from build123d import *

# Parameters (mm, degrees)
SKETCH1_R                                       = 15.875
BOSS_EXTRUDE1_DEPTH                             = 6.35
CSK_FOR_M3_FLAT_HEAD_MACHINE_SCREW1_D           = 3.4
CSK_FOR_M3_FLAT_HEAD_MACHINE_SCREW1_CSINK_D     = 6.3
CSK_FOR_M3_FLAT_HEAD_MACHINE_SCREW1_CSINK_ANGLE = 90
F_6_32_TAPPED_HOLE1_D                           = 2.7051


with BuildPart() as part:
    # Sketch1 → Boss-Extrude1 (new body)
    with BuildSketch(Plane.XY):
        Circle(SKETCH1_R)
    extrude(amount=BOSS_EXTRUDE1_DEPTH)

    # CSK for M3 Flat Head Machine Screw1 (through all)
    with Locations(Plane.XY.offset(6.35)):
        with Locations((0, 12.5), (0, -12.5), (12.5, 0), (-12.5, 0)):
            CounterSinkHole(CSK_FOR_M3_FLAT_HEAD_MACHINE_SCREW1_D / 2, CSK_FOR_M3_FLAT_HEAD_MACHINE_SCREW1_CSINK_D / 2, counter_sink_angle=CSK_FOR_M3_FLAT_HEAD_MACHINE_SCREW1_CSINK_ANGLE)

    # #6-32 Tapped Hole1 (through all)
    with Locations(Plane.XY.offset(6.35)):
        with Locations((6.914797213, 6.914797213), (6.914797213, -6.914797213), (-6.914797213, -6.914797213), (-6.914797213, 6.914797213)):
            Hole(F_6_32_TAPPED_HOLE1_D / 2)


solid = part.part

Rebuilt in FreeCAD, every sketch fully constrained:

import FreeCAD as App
import Part
import Sketcher
from FreeCAD import Vector
Q = App.Units.Quantity

doc = App.newDocument("Part")
body = doc.addObject("PartDesign::Body", "Body")

sketch1 = body.newObject("Sketcher::SketchObject", "Sketch")
sketch1.AttachmentSupport = (doc.getObject("XY_Plane"), [""])
sketch1.MapMode = "FlatFace"
sketch1.addGeometry(Part.Circle(Vector(0, 0, 0), Vector(0, 0, 1), 16), False)
sketch1.addConstraint(Sketcher.Constraint("Coincident", 0, 3, -1, 1))
sketch1.addConstraint(Sketcher.Constraint("Diameter", 0, Q("1.25 in")))
pad1 = body.newObject("PartDesign::Pad", "Pad")
pad1.Profile = sketch1
pad1.Length = Q("0.25 in")

sketch2 = body.newObject("Sketcher::SketchObject", "Sketch001")
sketch2.AttachmentSupport = (doc.getObject("XY_Plane"), [""])
sketch2.MapMode = "FlatFace"
sketch2.AttachmentOffset = App.Placement(Vector(0, 0, 0.25 * 25.4), App.Rotation())
sketch2.addGeometry(Part.Circle(Vector(0, 12.5, 0), Vector(0, 0, 1), 1.7), False)
sketch2.addGeometry(Part.Circle(Vector(0, -12.5, 0), Vector(0, 0, 1), 1.7), False)
sketch2.addGeometry(Part.Circle(Vector(12.5, 0, 0), Vector(0, 0, 1), 1.7), False)
sketch2.addGeometry(Part.Circle(Vector(-12.5, 0, 0), Vector(0, 0, 1), 1.7), False)
sketch2.addConstraint(Sketcher.Constraint("Equal", 0, 1))
sketch2.addConstraint(Sketcher.Constraint("Equal", 1, 2))
sketch2.addConstraint(Sketcher.Constraint("Equal", 2, 3))
sketch2.addConstraint(Sketcher.Constraint("Symmetric", 0, 3, 1, 3, -1, 1))
sketch2.addConstraint(Sketcher.Constraint("Symmetric", 2, 3, 3, 3, -1, 1))
sketch2.addConstraint(Sketcher.Constraint("PointOnObject", 0, 3, -2))
sketch2.addConstraint(Sketcher.Constraint("PointOnObject", 2, 3, -1))
sketch2.addConstraint(Sketcher.Constraint("Diameter", 0, Q("3.4 mm")))
sketch2.addConstraint(Sketcher.Constraint("DistanceY", -1, 1, 0, 3, Q("12.5 mm")))
sketch2.addConstraint(Sketcher.Constraint("DistanceX", -1, 1, 2, 3, Q("12.5 mm")))
doc.recompute()
hole = body.newObject("PartDesign::Hole", "Hole")
hole.Profile = sketch2
hole.ThreadType = "None"
hole.Diameter = 3.4
hole.DepthType = "ThroughAll"
hole.HoleCutType = "Countersink"
hole.HoleCutDiameter = 6.3
hole.HoleCutCountersinkAngle = 90

sketch3 = body.newObject("Sketcher::SketchObject", "Sketch002")
sketch3.AttachmentSupport = (doc.getObject("XY_Plane"), [""])
sketch3.MapMode = "FlatFace"
sketch3.AttachmentOffset = App.Placement(Vector(0, 0, 0.25 * 25.4), App.Rotation())
sketch3.addGeometry(Part.Circle(Vector(6.9, 6.9, 0), Vector(0, 0, 1), 1.4), False)
sketch3.addGeometry(Part.Circle(Vector(6.9, -6.9, 0), Vector(0, 0, 1), 1.4), False)
sketch3.addGeometry(Part.Circle(Vector(-6.9, -6.9, 0), Vector(0, 0, 1), 1.4), False)
sketch3.addGeometry(Part.Circle(Vector(-6.9, 6.9, 0), Vector(0, 0, 1), 1.4), False)
sketch3.addConstraint(Sketcher.Constraint("Equal", 0, 1))
sketch3.addConstraint(Sketcher.Constraint("Equal", 1, 2))
sketch3.addConstraint(Sketcher.Constraint("Equal", 2, 3))
sketch3.addConstraint(Sketcher.Constraint("Symmetric", 0, 3, 2, 3, -1, 1))
sketch3.addConstraint(Sketcher.Constraint("Symmetric", 1, 3, 3, 3, -1, 1))
sketch3.addConstraint(Sketcher.Constraint("Symmetric", 1, 3, 2, 3, -2))
sketch3.addConstraint(Sketcher.Constraint("Diameter", 0, Q("0.1065 in")))
sketch3.addConstraint(Sketcher.Constraint("DistanceX", -1, 1, 0, 3, Q("6.914797 mm")))
sketch3.addConstraint(Sketcher.Constraint("DistanceY", -1, 1, 0, 3, Q("6.914797 mm")))
doc.recompute()
hole2 = body.newObject("PartDesign::Hole", "Hole001")
hole2.Profile = sketch3
hole2.ThreadType = "None"
hole2.Diameter = Q("0.1065 in")
hole2.DepthType = "ThroughAll"

doc.recompute()
